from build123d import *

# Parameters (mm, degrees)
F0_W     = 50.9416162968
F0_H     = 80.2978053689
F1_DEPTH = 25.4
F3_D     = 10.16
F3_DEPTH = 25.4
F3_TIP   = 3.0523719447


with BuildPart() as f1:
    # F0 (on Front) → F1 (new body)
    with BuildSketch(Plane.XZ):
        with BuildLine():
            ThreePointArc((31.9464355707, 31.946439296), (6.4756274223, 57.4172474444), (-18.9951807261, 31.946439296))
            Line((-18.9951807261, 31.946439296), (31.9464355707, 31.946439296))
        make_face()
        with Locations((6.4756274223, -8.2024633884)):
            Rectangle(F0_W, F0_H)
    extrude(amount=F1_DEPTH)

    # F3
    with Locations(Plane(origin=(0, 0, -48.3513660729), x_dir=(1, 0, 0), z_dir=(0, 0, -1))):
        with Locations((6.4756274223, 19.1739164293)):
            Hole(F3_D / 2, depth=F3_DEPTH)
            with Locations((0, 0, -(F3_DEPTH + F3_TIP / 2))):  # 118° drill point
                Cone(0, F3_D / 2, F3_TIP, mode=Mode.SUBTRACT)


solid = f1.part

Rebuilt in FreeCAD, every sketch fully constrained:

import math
import FreeCAD as App
import Part
import Sketcher
from FreeCAD import Vector
Q = App.Units.Quantity

doc = App.newDocument("Part")
body = doc.addObject("PartDesign::Body", "Body")

# Sketch on XZ plane
sketch1 = body.newObject("Sketcher::SketchObject", "Sketch")
sketch1.AttachmentSupport = (doc.getObject("XZ_Plane"), [""])
sketch1.MapMode = "FlatFace"
sketch1.addGeometry(Part.ArcOfCircle(Part.Circle(Vector(6, 32, 0), Vector(0, 0, 1), 25), math.radians(0), math.radians(180)), False)
sketch1.addGeometry(Part.LineSegment(Vector(-19, 32, 0), Vector(-19, -48, 0)), False)
sketch1.addGeometry(Part.LineSegment(Vector(-19, -48, 0), Vector(32, -48, 0)), False)
sketch1.addGeometry(Part.LineSegment(Vector(32, -48, 0), Vector(32, 32, 0)), False)
sketch1.addConstraint(Sketcher.Constraint("Tangent", 0, 2, 1, 1))
sketch1.addConstraint(Sketcher.Constraint("Coincident", 1, 2, 2, 1))
sketch1.addConstraint(Sketcher.Constraint("Coincident", 2, 2, 3, 1))
sketch1.addConstraint(Sketcher.Constraint("Tangent", 3, 2, 0, 1))
sketch1.addConstraint(Sketcher.Constraint("Vertical", 1))
sketch1.addConstraint(Sketcher.Constraint("Horizontal", 2))
sketch1.addConstraint(Sketcher.Constraint("Vertical", 3))
sketch1.addConstraint(Sketcher.Constraint("Radius", 0, Q("25.470808 mm")))
sketch1.addConstraint(Sketcher.Constraint("DistanceY", 1, 2, 1, 1, Q("80.297805 mm")))
sketch1.addConstraint(Sketcher.Constraint("DistanceY", -1, 1, 0, 3, Q("31.946439 mm")))
sketch1.addConstraint(Sketcher.Constraint("DistanceX", 0, 2, -1, 1, Q("18.995181 mm")))
pad1 = body.newObject("PartDesign::Pad", "Pad")
pad1.Profile = sketch1
pad1.Length = Q("1 in")

# Sketch on XY plane
sketch2 = body.newObject("Sketcher::SketchObject", "Sketch001")
sketch2.AttachmentSupport = (doc.getObject("XY_Plane"), [""])
sketch2.MapMode = "FlatFace"
sketch2.AttachmentOffset = App.Placement(Vector(0, 0, -48.351366), App.Rotation())
sketch2.addGeometry(Part.Circle(Vector(6, -19, 0), Vector(0, 0, 1), 5), False)
sketch2.addConstraint(Sketcher.Constraint("Diameter", 0, Q("0.4 in")))
sketch2.addConstraint(Sketcher.Constraint("DistanceX", -1, 1, 0, 3, Q("6.475627 mm")))
sketch2.addConstraint(Sketcher.Constraint("DistanceY", 0, 3, -1, 1, Q("19.173916 mm")))
doc.recompute()
hole = body.newObject("PartDesign::Hole", "Hole")
hole.Profile = sketch2
hole.ThreadType = "None"
hole.Diameter = Q("0.4 in")
hole.DepthType = "Dimension"
hole.Depth = Q("1 in")
hole.DrillPoint = "Angled"
hole.DrillPointAngle = 118
hole.Reversed = True

doc.recompute()
